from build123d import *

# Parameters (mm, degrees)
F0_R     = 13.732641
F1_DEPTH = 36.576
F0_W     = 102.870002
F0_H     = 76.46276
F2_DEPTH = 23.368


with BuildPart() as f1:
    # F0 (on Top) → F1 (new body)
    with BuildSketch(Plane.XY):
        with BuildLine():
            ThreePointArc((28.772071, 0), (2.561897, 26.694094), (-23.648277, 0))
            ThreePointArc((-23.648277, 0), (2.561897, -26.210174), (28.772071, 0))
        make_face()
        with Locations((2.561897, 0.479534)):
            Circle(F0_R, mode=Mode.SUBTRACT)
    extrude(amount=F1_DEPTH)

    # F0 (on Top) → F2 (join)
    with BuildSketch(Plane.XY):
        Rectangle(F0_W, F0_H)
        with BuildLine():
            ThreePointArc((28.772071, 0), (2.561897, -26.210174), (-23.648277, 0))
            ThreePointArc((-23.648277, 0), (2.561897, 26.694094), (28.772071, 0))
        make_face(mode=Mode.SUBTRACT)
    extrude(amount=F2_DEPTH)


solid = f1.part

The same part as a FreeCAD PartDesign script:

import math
import FreeCAD as App
import Part
import Sketcher
Q = App.Units.Quantity

doc = App.newDocument("Part")
body = doc.addObject("PartDesign::Body", "Body")

# Sketch on XY plane
sketch1 = body.newObject("Sketcher::SketchObject", "Sketch")
sketch1.AttachmentSupport = (doc.getObject("XY_Plane"), [""])
sketch1.MapMode = "FlatFace"
sketch1.addGeometry([
    Part.ArcOfCircle(Part.Circle(App.Vector(3, 0, 0), App.Vector(0, 0, 1), 26), math.radians(-1), math.radians(181)),
    Part.ArcOfCircle(Part.Circle(App.Vector(3, 0, 0), App.Vector(0, 0, 1), 26), math.radians(180), math.radians(360)),
    Part.Circle(App.Vector(3, 0, 0), App.Vector(0, 0, 1), 14),
], False)
sketch1.addConstraint([
    Sketcher.Constraint("Coincident", 0, 1, 1, 2),
    Sketcher.Constraint("Coincident", 1, 1, 0, 2),
    Sketcher.Constraint("Coincident", 2, 3, 0, 3),
    Sketcher.Constraint("PointOnObject", 1, 3, -1),
    Sketcher.Constraint("PointOnObject", 0, 1, -1),
    Sketcher.Constraint("PointOnObject", 1, 1, -1),
    Sketcher.Constraint("Diameter", 2, Q("27.465282 mm")),
    Sketcher.Constraint("Radius", 0, Q("26.21456 mm")),
    Sketcher.Constraint("Radius", 1, Q("26.210174 mm")),
    Sketcher.Constraint("DistanceX", -1, 1, 0, 1, Q("28.772071 mm")),
])
pad1 = body.newObject("PartDesign::Pad", "Pad")
pad1.Profile = sketch1
pad1.Length = Q("1.44 in")

# Sketch on XY plane
sketch2 = body.newObject("Sketcher::SketchObject", "Sketch001")
sketch2.AttachmentSupport = (doc.getObject("XY_Plane"), [""])
sketch2.MapMode = "FlatFace"
sketch2.addGeometry([
    Part.LineSegment(App.Vector(-51, 38, 0), App.Vector(-51, -38, 0)),  # 0
    Part.LineSegment(App.Vector(-51, -38, 0), App.Vector(51, -38, 0)),  # 1
    Part.LineSegment(App.Vector(51, -38, 0), App.Vector(51, 38, 0)),  # 2
    Part.LineSegment(App.Vector(51, 38, 0), App.Vector(-51, 38, 0)),  # 3
    Part.ArcOfCircle(Part.Circle(App.Vector(3, 0, 0), App.Vector(0, 0, 1), 26), math.radians(-1), math.radians(181)),  # 4
    Part.ArcOfCircle(Part.Circle(App.Vector(3, 0, 0), App.Vector(0, 0, 1), 26), math.radians(180), math.radians(360)),  # 5
], False)
sketch2.addConstraint([
    Sketcher.Constraint("Coincident", 0, 2, 1, 1),
    Sketcher.Constraint("Coincident", 1, 2, 2, 1),
    Sketcher.Constraint("Coincident", 2, 2, 3, 1),
    Sketcher.Constraint("Coincident", 3, 2, 0, 1),
    Sketcher.Constraint("Coincident", 4, 1, 5, 2),
    Sketcher.Constraint("Coincident", 5, 1, 4, 2),
    Sketcher.Constraint("Vertical", 0),
    Sketcher.Constraint("Horizontal", 1),
    Sketcher.Constraint("Vertical", 2),
    Sketcher.Constraint("Horizontal", 3),
    Sketcher.Constraint("Symmetric", 0, 2, 2, 2, -1, 1),
    Sketcher.Constraint("PointOnObject", 5, 3, -1),
    Sketcher.Constraint("PointOnObject", 4, 1, -1),
    Sketcher.Constraint("PointOnObject", 5, 1, -1),
    Sketcher.Constraint("DistanceX", 1, 1, 1, 2, Q("4.0500001 in")),
    Sketcher.Constraint("Radius", 4, Q("26.21456 mm")),
    Sketcher.Constraint("Radius", 5, Q("26.210174 mm")),
    Sketcher.Constraint("DistanceY", 0, 2, 0, 1, Q("76.46276 mm")),
    Sketcher.Constraint("DistanceX", 0, 2, 5, 3, Q("53.996898 mm")),
])
pad2 = body.newObject("PartDesign::Pad", "Pad001")
pad2.Profile = sketch2
pad2.Length = Q("0.92 in")

doc.recompute()
